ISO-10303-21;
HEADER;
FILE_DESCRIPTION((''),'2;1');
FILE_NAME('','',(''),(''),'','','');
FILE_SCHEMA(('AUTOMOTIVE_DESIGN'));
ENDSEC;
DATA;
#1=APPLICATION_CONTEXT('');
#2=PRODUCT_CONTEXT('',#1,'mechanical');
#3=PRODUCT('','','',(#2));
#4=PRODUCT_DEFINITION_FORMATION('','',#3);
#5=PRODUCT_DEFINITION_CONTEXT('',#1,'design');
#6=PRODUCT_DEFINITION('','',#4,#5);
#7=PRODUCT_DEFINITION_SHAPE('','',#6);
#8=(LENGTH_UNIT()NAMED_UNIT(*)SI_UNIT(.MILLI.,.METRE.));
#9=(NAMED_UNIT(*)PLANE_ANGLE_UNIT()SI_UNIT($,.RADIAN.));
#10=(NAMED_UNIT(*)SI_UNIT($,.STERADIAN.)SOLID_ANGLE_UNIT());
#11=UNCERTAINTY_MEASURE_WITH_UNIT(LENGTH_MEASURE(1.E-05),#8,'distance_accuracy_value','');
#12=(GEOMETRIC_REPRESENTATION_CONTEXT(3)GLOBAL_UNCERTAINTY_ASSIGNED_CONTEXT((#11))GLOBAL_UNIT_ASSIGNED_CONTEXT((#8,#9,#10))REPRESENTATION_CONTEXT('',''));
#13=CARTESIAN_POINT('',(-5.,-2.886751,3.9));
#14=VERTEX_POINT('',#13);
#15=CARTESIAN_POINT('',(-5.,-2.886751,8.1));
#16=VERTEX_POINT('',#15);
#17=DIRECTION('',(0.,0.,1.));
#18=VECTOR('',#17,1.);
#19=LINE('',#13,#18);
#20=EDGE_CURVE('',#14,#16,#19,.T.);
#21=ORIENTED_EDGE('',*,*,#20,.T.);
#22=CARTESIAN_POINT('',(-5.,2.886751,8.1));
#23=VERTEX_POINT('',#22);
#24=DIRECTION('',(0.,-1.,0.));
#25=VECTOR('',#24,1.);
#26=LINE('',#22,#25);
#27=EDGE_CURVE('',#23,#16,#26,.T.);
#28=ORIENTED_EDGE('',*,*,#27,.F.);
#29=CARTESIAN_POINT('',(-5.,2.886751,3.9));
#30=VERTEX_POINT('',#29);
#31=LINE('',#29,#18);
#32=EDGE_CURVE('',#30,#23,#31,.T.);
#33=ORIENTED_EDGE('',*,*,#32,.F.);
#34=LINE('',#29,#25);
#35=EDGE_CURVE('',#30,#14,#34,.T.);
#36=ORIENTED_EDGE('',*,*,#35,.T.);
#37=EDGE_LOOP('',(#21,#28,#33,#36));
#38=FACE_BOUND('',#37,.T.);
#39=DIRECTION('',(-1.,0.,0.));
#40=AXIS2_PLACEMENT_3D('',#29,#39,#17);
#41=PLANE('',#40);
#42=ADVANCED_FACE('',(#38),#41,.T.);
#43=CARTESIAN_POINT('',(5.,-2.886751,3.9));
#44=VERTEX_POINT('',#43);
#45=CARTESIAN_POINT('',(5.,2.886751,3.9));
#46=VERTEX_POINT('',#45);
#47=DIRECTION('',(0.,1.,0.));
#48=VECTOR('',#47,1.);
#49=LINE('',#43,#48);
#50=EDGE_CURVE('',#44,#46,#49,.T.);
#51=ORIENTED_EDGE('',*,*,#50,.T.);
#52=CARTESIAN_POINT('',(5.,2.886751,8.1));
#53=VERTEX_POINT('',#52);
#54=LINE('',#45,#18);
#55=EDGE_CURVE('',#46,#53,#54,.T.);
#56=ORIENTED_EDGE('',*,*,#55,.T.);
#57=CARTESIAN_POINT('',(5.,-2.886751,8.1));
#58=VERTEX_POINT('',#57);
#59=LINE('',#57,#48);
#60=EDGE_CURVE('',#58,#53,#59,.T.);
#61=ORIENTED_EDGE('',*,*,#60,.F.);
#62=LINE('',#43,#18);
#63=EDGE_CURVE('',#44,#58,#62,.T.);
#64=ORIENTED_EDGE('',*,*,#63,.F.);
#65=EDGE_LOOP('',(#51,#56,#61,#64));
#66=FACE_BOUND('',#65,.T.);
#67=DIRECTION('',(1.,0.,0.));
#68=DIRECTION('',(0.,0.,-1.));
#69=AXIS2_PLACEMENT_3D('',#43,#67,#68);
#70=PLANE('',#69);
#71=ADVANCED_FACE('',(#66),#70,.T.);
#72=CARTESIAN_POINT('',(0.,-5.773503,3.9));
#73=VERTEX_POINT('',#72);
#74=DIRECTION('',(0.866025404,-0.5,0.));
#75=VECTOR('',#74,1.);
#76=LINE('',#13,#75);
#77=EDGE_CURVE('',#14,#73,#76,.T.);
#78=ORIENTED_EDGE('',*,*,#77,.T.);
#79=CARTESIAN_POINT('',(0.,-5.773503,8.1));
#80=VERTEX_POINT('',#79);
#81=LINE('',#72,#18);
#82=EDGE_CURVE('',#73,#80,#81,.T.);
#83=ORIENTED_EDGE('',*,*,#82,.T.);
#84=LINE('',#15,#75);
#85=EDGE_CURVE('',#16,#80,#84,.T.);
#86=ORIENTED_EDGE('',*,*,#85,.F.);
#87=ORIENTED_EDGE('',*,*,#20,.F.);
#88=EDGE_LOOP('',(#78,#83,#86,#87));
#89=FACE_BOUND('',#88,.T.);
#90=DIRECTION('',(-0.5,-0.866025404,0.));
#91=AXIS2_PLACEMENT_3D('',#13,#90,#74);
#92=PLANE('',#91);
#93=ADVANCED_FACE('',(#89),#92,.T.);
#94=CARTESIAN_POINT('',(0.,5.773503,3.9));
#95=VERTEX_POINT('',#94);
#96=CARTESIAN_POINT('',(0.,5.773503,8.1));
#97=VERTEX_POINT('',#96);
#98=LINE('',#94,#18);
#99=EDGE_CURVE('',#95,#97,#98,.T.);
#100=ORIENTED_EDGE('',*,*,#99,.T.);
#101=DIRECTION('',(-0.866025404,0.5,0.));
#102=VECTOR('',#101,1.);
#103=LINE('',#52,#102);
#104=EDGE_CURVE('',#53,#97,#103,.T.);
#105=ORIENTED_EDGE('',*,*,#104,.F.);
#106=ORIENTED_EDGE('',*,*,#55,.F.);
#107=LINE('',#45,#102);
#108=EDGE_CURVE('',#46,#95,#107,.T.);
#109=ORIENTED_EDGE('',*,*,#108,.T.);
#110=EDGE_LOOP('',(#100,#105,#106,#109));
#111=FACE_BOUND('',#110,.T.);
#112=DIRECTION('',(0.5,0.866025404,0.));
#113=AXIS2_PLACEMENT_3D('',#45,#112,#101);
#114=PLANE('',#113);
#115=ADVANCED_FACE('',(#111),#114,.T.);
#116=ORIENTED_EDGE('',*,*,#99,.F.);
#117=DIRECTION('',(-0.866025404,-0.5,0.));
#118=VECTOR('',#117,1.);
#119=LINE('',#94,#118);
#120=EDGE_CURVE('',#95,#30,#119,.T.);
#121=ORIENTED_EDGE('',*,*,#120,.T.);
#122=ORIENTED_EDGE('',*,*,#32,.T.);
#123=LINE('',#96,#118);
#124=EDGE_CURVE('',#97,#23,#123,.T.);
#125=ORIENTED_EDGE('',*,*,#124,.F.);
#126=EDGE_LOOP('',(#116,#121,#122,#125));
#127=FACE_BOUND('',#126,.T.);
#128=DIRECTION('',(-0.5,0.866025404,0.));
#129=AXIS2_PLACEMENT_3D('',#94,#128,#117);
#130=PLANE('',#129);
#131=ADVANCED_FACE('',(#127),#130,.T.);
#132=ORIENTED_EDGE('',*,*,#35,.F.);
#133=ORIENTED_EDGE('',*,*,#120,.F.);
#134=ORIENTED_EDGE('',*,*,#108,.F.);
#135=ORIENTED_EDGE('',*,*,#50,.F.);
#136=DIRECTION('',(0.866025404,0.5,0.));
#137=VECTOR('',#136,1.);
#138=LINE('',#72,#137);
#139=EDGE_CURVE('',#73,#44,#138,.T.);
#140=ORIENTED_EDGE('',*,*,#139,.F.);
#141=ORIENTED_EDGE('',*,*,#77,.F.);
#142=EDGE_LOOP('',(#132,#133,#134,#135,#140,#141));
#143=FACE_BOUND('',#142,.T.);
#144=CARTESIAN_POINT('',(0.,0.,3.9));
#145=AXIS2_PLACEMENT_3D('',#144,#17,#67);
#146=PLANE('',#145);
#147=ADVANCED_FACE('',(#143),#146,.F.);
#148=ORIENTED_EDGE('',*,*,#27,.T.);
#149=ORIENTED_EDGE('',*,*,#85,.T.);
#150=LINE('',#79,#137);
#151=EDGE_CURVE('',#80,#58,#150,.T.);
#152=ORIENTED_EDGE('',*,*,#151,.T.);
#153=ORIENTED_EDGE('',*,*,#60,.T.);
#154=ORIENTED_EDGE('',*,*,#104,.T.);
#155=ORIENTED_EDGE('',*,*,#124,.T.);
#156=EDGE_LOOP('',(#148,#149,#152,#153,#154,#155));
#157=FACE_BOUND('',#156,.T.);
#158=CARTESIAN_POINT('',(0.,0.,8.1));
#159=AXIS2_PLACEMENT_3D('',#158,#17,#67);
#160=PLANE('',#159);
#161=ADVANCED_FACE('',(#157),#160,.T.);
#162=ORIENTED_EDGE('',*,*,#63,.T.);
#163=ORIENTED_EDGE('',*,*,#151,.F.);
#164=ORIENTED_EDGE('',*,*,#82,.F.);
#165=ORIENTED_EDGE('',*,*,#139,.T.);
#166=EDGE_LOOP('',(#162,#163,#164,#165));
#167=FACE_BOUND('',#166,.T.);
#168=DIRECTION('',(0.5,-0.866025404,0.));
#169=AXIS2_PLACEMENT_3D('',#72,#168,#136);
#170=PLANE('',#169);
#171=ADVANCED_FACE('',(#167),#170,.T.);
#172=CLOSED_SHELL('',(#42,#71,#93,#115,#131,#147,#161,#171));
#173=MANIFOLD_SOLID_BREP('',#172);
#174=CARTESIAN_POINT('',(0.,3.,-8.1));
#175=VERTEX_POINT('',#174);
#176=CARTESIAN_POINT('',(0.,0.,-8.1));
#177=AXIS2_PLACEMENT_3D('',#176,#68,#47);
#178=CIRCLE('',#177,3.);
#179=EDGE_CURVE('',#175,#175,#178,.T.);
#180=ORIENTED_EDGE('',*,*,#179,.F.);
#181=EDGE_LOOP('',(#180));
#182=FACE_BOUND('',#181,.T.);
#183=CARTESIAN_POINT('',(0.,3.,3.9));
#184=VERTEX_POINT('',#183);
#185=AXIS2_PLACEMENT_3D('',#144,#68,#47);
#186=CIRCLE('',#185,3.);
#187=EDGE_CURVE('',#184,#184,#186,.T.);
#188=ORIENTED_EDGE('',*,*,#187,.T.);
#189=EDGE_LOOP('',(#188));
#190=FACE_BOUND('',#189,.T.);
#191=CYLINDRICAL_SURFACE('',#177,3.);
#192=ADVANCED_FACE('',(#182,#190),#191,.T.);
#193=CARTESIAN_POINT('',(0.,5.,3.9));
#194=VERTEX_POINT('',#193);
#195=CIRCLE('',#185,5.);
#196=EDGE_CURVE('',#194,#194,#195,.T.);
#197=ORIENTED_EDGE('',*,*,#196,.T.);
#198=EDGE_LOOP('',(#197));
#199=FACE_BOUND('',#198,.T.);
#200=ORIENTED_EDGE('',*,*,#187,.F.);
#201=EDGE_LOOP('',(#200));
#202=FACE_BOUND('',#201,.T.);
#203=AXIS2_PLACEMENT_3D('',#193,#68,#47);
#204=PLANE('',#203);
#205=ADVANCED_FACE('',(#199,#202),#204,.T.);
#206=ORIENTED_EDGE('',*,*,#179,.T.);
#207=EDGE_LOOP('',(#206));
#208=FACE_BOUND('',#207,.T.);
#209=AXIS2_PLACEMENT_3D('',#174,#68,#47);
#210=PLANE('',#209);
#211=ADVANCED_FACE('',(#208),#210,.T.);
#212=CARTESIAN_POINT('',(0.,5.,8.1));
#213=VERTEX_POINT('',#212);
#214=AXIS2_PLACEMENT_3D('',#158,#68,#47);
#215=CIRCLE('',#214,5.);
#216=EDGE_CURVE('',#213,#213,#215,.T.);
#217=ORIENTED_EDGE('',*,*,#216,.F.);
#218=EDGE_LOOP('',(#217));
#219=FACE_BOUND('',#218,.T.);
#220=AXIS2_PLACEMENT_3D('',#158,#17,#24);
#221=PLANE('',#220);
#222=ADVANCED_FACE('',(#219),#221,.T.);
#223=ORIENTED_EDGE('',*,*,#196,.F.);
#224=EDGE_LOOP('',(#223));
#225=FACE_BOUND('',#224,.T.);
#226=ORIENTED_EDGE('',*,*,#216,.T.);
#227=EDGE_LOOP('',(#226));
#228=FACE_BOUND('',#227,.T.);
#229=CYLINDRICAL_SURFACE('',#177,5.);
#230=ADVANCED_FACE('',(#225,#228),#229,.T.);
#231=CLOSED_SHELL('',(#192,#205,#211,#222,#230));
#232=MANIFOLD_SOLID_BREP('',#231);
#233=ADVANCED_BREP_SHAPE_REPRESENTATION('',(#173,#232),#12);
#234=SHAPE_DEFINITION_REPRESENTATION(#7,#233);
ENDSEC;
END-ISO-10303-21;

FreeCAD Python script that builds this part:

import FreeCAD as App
import Part
import Sketcher
from FreeCAD import Vector
Q = App.Units.Quantity


def add_polygon(sketch, points):
    """Adds a closed chain of lines whose ends are joined by coincident constraints."""
    first, n = sketch.GeometryCount, len(points)
    for a, b in zip(points, points[1:] + points[:1]):
        sketch.addGeometry(Part.LineSegment(App.Vector(*a, 0), App.Vector(*b, 0)), False)
    for i in range(n):
        sketch.addConstraint(Sketcher.Constraint("Coincident", first + i, 2, first + (i + 1) % n, 1))

doc = App.newDocument("Part")
params = doc.addObject("Spreadsheet::Sheet", "Params")
for row, (alias, value) in enumerate([
    ("sketch1_width", "3 mm"),
    ("sketch1_width2", "2 mm"),
    ("sketch1_height", "12 mm"),
    ("sketch1_height2", "16.2 mm"),
    ("revolution_angle", "360 deg"),
    ("pad1_length", "4.2 mm"),
], start=1):
    params.set(f"A{row}", alias)
    params.set(f"B{row}", "=" + value)
    params.setAlias(f"B{row}", alias)

body = doc.addObject("PartDesign::Body", "Body")

# Sketch on YZ plane
sketch1 = body.newObject("Sketcher::SketchObject", "Sketch")
sketch1.AttachmentSupport = (doc.getObject("YZ_Plane"), [""])
sketch1.MapMode = "FlatFace"
add_polygon(sketch1, [(0, 8.1), (0, -8.1), (3, -8.1), (3, 3.9), (5, 3.9), (5, 8.1)])  # lines 0-5
sketch1.addConstraint(Sketcher.Constraint("Vertical", 0))
sketch1.addConstraint(Sketcher.Constraint("Horizontal", 1))
sketch1.addConstraint(Sketcher.Constraint("Vertical", 2))
sketch1.addConstraint(Sketcher.Constraint("Horizontal", 3))
sketch1.addConstraint(Sketcher.Constraint("Vertical", 4))
sketch1.addConstraint(Sketcher.Constraint("Horizontal", 5))
sketch1.addConstraint(Sketcher.Constraint("Symmetric", 0, 2, 5, 2, -1, 1))
sketch1.addConstraint(Sketcher.Constraint("DistanceX", 1, 1, 1, 2, 3.0))
sketch1.addConstraint(Sketcher.Constraint("DistanceX", 3, 1, 3, 2, 2.0))
sketch1.addConstraint(Sketcher.Constraint("DistanceY", 2, 1, 2, 2, 12.0))
sketch1.addConstraint(Sketcher.Constraint("DistanceY", 0, 2, 0, 1, 16.2))
sketch1.setExpression("Constraints[13]", "Params.sketch1_width")
sketch1.setExpression("Constraints[14]", "Params.sketch1_width2")
sketch1.setExpression("Constraints[15]", "Params.sketch1_height")
sketch1.setExpression("Constraints[16]", "Params.sketch1_height2")
revolution = body.newObject("PartDesign::Revolution", "Revolution")
revolution.Profile = sketch1
revolution.ReferenceAxis = (sketch1, ["V_Axis"])
revolution.setExpression("Angle", "Params.revolution_angle")
body2 = doc.addObject("PartDesign::Body", "Body001")

# Sketch on XY plane
sketch2 = body2.newObject("Sketcher::SketchObject", "Sketch001")
sketch2.AttachmentSupport = (doc.getObject("XY_Plane001"), [""])
sketch2.MapMode = "FlatFace"
sketch2.AttachmentOffset = App.Placement(Vector(0, 0, 8.1), App.Rotation())
add_polygon(sketch2, [(0, 6), (-5, 3), (-5, -3), (0, -6), (5, -3), (5, 3)])  # lines 0-5
sketch2.addConstraint(Sketcher.Constraint("Vertical", 1))
sketch2.addConstraint(Sketcher.Constraint("Vertical", 4))
sketch2.addConstraint(Sketcher.Constraint("Symmetric", 0, 2, 3, 2, -1, 1))
sketch2.addConstraint(Sketcher.Constraint("Symmetric", 2, 2, 5, 2, -1, 1))
sketch2.addConstraint(Sketcher.Constraint("PointOnObject", 2, 2, -2))
sketch2.addConstraint(Sketcher.Constraint("Parallel", 2, 5))
sketch2.addConstraint(Sketcher.Constraint("Horizontal", 1, 2, 3, 2))
sketch2.addConstraint(Sketcher.Constraint("Angle", 0, Q("-150 deg")))
sketch2.addConstraint(Sketcher.Constraint("DistanceX", 0, 2, -1, 1, 5.0))
sketch2.addConstraint(Sketcher.Constraint("DistanceY", 1, 2, 1, 1, 5.773503))
pad1 = body2.newObject("PartDesign::Pad", "Pad")
pad1.Profile = sketch2
pad1.setExpression("Length", "Params.pad1_length")
pad1.Reversed = True

doc.recompute()
